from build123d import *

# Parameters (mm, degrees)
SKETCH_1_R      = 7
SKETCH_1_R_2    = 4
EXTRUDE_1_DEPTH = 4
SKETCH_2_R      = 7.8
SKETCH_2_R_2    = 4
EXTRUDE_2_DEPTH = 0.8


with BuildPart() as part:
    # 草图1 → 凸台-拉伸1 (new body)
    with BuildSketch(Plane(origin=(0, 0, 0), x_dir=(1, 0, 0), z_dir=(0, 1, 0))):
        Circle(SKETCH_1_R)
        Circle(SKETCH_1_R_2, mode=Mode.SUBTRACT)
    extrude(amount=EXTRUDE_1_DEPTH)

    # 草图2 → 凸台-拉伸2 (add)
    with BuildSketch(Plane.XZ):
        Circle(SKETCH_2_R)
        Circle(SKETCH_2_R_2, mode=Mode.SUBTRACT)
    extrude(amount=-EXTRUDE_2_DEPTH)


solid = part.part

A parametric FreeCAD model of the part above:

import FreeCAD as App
import Part
import Sketcher

V = App.Vector

doc = App.newDocument("Part")
body = doc.addObject("PartDesign::Body", "Body")

sketch1 = body.newObject("Sketcher::SketchObject", "Sketch")
sketch1.AttachmentSupport = (doc.getObject("XZ_Plane"), [""])
sketch1.MapMode = "FlatFace"
sketch1.addGeometry([
    Part.Circle(V(0, 0, 0), V(0, 0, 1), 7),
    Part.Circle(V(0, 0, 0), V(0, 0, 1), 4),
], False)
sketch1.addConstraint([
    Sketcher.Constraint("Coincident", 0, 3, -1, 1),
    Sketcher.Constraint("Coincident", 1, 3, -1, 1),
    Sketcher.Constraint("Diameter", 0, 14.0),
    Sketcher.Constraint("Diameter", 1, 8.0),
])
pad1 = body.newObject("PartDesign::Pad", "Pad")
pad1.Profile = sketch1
pad1.Length = 4
pad1.Reversed = True

sketch2 = body.newObject("Sketcher::SketchObject", "Sketch001")
sketch2.AttachmentSupport = (doc.getObject("XZ_Plane"), [""])
sketch2.MapMode = "FlatFace"
sketch2.addGeometry([
    Part.Circle(V(0, 0, 0), V(0, 0, 1), 7.8),
    Part.Circle(V(0, 0, 0), V(0, 0, 1), 4),
], False)
sketch2.addConstraint([
    Sketcher.Constraint("Coincident", 0, 3, -1, 1),
    Sketcher.Constraint("Coincident", 1, 3, -1, 1),
    Sketcher.Constraint("Diameter", 1, 8.0),
    Sketcher.Constraint("Diameter", 0, 15.6),
])
pad2 = body.newObject("PartDesign::Pad", "Pad001")
pad2.Profile = sketch2
pad2.Length = 0.8
pad2.Reversed = True

doc.recompute()
